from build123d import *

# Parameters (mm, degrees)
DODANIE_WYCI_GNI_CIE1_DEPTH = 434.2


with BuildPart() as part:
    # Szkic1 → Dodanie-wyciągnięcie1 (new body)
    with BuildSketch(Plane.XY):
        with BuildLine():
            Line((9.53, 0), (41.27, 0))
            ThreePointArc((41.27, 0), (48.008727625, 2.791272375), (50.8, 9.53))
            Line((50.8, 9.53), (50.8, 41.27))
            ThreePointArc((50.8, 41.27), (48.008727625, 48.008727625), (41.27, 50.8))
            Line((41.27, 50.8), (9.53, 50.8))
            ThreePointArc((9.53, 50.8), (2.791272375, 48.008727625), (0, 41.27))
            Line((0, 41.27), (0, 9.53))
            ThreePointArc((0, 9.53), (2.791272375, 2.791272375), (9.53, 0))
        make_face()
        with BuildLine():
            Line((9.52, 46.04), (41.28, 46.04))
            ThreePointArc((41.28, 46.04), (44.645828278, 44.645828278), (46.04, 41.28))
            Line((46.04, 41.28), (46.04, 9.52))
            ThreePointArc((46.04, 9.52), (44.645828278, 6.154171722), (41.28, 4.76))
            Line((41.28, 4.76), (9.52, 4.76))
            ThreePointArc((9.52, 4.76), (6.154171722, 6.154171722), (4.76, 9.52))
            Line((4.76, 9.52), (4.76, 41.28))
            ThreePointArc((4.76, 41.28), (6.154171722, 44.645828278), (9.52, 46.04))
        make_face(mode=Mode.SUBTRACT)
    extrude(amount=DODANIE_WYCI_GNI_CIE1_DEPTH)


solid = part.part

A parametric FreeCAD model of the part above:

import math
import FreeCAD as App
import Part
import Sketcher
from FreeCAD import Vector
Q = App.Units.Quantity

doc = App.newDocument("Part")
body = doc.addObject("PartDesign::Body", "Body")

# Sketch on XY plane
sketch1 = doc.addObject("Sketcher::SketchObject", "Sketch")
body.addObject(sketch1)
sketch1.AttachmentSupport = (doc.XY_Plane, [""])
sketch1.MapMode = "FlatFace"
sketch1.addGeometry(Part.LineSegment(Vector(9.5, 0, 0), Vector(41.3, 0, 0)), False)
sketch1.addGeometry(Part.ArcOfCircle(Part.Circle(Vector(41.3, 9.5, 0), Vector(0, 0, 1), 9.5), math.radians(-90), math.radians(0)), False)
sketch1.addGeometry(Part.LineSegment(Vector(50.8, 9.5, 0), Vector(50.8, 41.3, 0)), False)
sketch1.addGeometry(Part.ArcOfCircle(Part.Circle(Vector(41.3, 41.3, 0), Vector(0, 0, 1), 9.5), math.radians(0), math.radians(90)), False)
sketch1.addGeometry(Part.LineSegment(Vector(41.3, 50.8, 0), Vector(9.5, 50.8, 0)), False)
sketch1.addGeometry(Part.ArcOfCircle(Part.Circle(Vector(9.5, 41.3, 0), Vector(0, 0, 1), 9.5), math.radians(90), math.radians(180)), False)
sketch1.addGeometry(Part.LineSegment(Vector(0, 41.3, 0), Vector(0, 9.5, 0)), False)
sketch1.addGeometry(Part.ArcOfCircle(Part.Circle(Vector(9.5, 9.5, 0), Vector(0, 0, 1), 9.5), math.radians(180), math.radians(270)), False)
sketch1.addGeometry(Part.ArcOfCircle(Part.Circle(Vector(9.5, 41.3, 0), Vector(0, 0, 1), 4.8), math.radians(90), math.radians(180)), False)
sketch1.addGeometry(Part.LineSegment(Vector(9.5, 46, 0), Vector(41.3, 46, 0)), False)
sketch1.addGeometry(Part.ArcOfCircle(Part.Circle(Vector(41.3, 41.3, 0), Vector(0, 0, 1), 4.8), math.radians(0), math.radians(90)), False)
sketch1.addGeometry(Part.LineSegment(Vector(46, 41.3, 0), Vector(46, 9.5, 0)), False)
sketch1.addGeometry(Part.ArcOfCircle(Part.Circle(Vector(41.3, 9.5, 0), Vector(0, 0, 1), 4.8), math.radians(-90), math.radians(0)), False)
sketch1.addGeometry(Part.LineSegment(Vector(41.3, 4.8, 0), Vector(9.5, 4.8, 0)), False)
sketch1.addGeometry(Part.ArcOfCircle(Part.Circle(Vector(9.5, 9.5, 0), Vector(0, 0, 1), 4.8), math.radians(-180), math.radians(-90)), False)
sketch1.addGeometry(Part.LineSegment(Vector(4.8, 9.5, 0), Vector(4.8, 41.3, 0)), False)
sketch1.addConstraint(Sketcher.Constraint("Tangent", 0, 2, 1, 1))
sketch1.addConstraint(Sketcher.Constraint("Tangent", 1, 2, 2, 1))
sketch1.addConstraint(Sketcher.Constraint("Tangent", 2, 2, 3, 1))
sketch1.addConstraint(Sketcher.Constraint("Tangent", 3, 2, 4, 1))
sketch1.addConstraint(Sketcher.Constraint("Tangent", 4, 2, 5, 1))
sketch1.addConstraint(Sketcher.Constraint("Tangent", 5, 2, 6, 1))
sketch1.addConstraint(Sketcher.Constraint("Tangent", 6, 2, 7, 1))
sketch1.addConstraint(Sketcher.Constraint("Tangent", 7, 2, 0, 1))
sketch1.addConstraint(Sketcher.Constraint("Tangent", 8, 1, 9, 1))
sketch1.addConstraint(Sketcher.Constraint("Tangent", 9, 2, 10, 2))
sketch1.addConstraint(Sketcher.Constraint("Tangent", 10, 1, 11, 1))
sketch1.addConstraint(Sketcher.Constraint("Tangent", 11, 2, 12, 2))
sketch1.addConstraint(Sketcher.Constraint("Tangent", 12, 1, 13, 1))
sketch1.addConstraint(Sketcher.Constraint("Tangent", 13, 2, 14, 2))
sketch1.addConstraint(Sketcher.Constraint("Tangent", 14, 1, 15, 1))
sketch1.addConstraint(Sketcher.Constraint("Tangent", 15, 2, 8, 2))
sketch1.addConstraint(Sketcher.Constraint("Horizontal", 0))
sketch1.addConstraint(Sketcher.Constraint("Vertical", 2))
sketch1.addConstraint(Sketcher.Constraint("Horizontal", 4))
sketch1.addConstraint(Sketcher.Constraint("Vertical", 6))
sketch1.addConstraint(Sketcher.Constraint("Horizontal", 9))
sketch1.addConstraint(Sketcher.Constraint("Vertical", 11))
sketch1.addConstraint(Sketcher.Constraint("Horizontal", 13))
sketch1.addConstraint(Sketcher.Constraint("Vertical", 15))
sketch1.addConstraint(Sketcher.Constraint("Equal", 1, 3))
sketch1.addConstraint(Sketcher.Constraint("Equal", 3, 5))
sketch1.addConstraint(Sketcher.Constraint("Equal", 5, 7))
sketch1.addConstraint(Sketcher.Constraint("Equal", 8, 10))
sketch1.addConstraint(Sketcher.Constraint("Equal", 10, 12))
sketch1.addConstraint(Sketcher.Constraint("Equal", 12, 14))
sketch1.addConstraint(Sketcher.Constraint("PointOnObject", 0, 2, -1))
sketch1.addConstraint(Sketcher.Constraint("PointOnObject", 5, 2, -2))
sketch1.addConstraint(Sketcher.Constraint("Equal", 4, 2))
sketch1.addConstraint(Sketcher.Constraint("Equal", 13, 11))
sketch1.addConstraint(Sketcher.Constraint("Radius", 1, Q("9.53 mm")))
sketch1.addConstraint(Sketcher.Constraint("Radius", 8, Q("4.76 mm")))
sketch1.addConstraint(Sketcher.Constraint("DistanceX", 0, 1, 0, 2, Q("31.74 mm")))
sketch1.addConstraint(Sketcher.Constraint("DistanceX", 9, 1, 9, 2, Q("31.76 mm")))
sketch1.addConstraint(Sketcher.Constraint("DistanceX", -1, 1, 8, 3, Q("9.52 mm")))
sketch1.addConstraint(Sketcher.Constraint("DistanceY", -1, 1, 8, 3, Q("41.28 mm")))
pad1 = doc.addObject("PartDesign::Pad", "Pad")
body.addObject(pad1)
pad1.Profile = sketch1
pad1.Length = 434.2

doc.recompute()
